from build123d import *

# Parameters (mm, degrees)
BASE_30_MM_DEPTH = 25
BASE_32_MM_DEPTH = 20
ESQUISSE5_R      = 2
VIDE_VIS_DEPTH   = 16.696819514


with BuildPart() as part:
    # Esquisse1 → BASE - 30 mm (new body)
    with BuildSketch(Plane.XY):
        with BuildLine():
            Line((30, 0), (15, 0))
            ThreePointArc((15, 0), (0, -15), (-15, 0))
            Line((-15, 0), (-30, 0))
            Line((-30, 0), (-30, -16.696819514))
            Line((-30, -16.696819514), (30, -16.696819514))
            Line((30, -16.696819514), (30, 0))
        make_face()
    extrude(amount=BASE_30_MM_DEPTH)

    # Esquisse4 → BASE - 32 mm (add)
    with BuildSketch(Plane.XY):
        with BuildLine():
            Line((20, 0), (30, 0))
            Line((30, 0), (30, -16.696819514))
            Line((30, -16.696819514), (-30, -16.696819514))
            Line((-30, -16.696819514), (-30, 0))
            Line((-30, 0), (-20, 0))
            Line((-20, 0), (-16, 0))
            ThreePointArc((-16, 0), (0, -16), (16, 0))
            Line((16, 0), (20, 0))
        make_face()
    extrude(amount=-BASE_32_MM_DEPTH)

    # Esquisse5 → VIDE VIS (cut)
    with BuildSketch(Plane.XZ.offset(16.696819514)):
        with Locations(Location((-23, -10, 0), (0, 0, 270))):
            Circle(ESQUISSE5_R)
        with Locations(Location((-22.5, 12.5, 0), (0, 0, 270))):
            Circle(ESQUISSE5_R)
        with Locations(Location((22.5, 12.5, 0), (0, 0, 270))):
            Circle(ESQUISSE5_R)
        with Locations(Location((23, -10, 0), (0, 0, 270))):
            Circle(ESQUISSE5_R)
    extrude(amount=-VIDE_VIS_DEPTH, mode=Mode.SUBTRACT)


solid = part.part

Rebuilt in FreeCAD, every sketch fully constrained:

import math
import FreeCAD as App
import Part
import Sketcher

doc = App.newDocument("Part")
body = doc.addObject("PartDesign::Body", "Body")

sketch1 = doc.addObject("Sketcher::SketchObject", "Sketch")
body.addObject(sketch1)
sketch1.AttachmentSupport = (doc.XY_Plane, [""])
sketch1.MapMode = "FlatFace"
sketch1.addGeometry(Part.LineSegment(App.Vector(30, 0, 0), App.Vector(15, 0, 0)), False)
sketch1.addGeometry(Part.ArcOfCircle(Part.Circle(App.Vector(0, 0, 0), App.Vector(0, 0, 1), 15), math.radians(180), math.radians(360)), False)
sketch1.addGeometry(Part.LineSegment(App.Vector(-15, 0, 0), App.Vector(-30, 0, 0)), False)
sketch1.addGeometry(Part.LineSegment(App.Vector(-30, 0, 0), App.Vector(-30, -16.69682, 0)), False)
sketch1.addGeometry(Part.LineSegment(App.Vector(-30, -16.69682, 0), App.Vector(30, -16.69682, 0)), False)
sketch1.addGeometry(Part.LineSegment(App.Vector(30, -16.69682, 0), App.Vector(30, 0, 0)), False)
sketch1.addConstraint(Sketcher.Constraint("Coincident", 0, 2, 1, 2))
sketch1.addConstraint(Sketcher.Constraint("Coincident", 1, 1, 2, 1))
sketch1.addConstraint(Sketcher.Constraint("Coincident", 2, 2, 3, 1))
sketch1.addConstraint(Sketcher.Constraint("Coincident", 3, 2, 4, 1))
sketch1.addConstraint(Sketcher.Constraint("Coincident", 4, 2, 5, 1))
sketch1.addConstraint(Sketcher.Constraint("Coincident", 5, 2, 0, 1))
sketch1.addConstraint(Sketcher.Constraint("Horizontal", 0))
sketch1.addConstraint(Sketcher.Constraint("Horizontal", 2))
sketch1.addConstraint(Sketcher.Constraint("Vertical", 3))
sketch1.addConstraint(Sketcher.Constraint("Horizontal", 4))
sketch1.addConstraint(Sketcher.Constraint("Vertical", 5))
sketch1.addConstraint(Sketcher.Constraint("Coincident", 1, 3, -1, 1))
sketch1.addConstraint(Sketcher.Constraint("Symmetric", 2, 2, 5, 2, -1, 1))
sketch1.addConstraint(Sketcher.Constraint("PointOnObject", 0, 2, -1))
sketch1.addConstraint(Sketcher.Constraint("Radius", 1, 15.0))
sketch1.addConstraint(Sketcher.Constraint("DistanceX", 0, 2, 0, 1, 15.0))
sketch1.addConstraint(Sketcher.Constraint("DistanceY", 3, 2, 3, 1, 16.69682))
pad1 = doc.addObject("PartDesign::Pad", "Pad")
body.addObject(pad1)
pad1.Profile = sketch1
pad1.Length = 25

sketch2 = doc.addObject("Sketcher::SketchObject", "Sketch001")
body.addObject(sketch2)
sketch2.AttachmentSupport = (doc.XY_Plane, [""])
sketch2.MapMode = "FlatFace"
sketch2.addGeometry(Part.LineSegment(App.Vector(30, -16.69682, 0), App.Vector(30, 0, 0)), False)
sketch2.addGeometry(Part.LineSegment(App.Vector(30, 0, 0), App.Vector(16, 0, 0)), False)
sketch2.addGeometry(Part.ArcOfCircle(Part.Circle(App.Vector(0, 0, 0), App.Vector(0, 0, 1), 16), math.radians(180), math.radians(360)), False)
sketch2.addGeometry(Part.LineSegment(App.Vector(-16, 0, 0), App.Vector(-30, 0, 0)), False)
sketch2.addGeometry(Part.LineSegment(App.Vector(-30, 0, 0), App.Vector(-30, -16.69682, 0)), False)
sketch2.addGeometry(Part.LineSegment(App.Vector(-30, -16.69682, 0), App.Vector(30, -16.69682, 0)), False)
sketch2.addConstraint(Sketcher.Constraint("Coincident", 0, 2, 1, 1))
sketch2.addConstraint(Sketcher.Constraint("Coincident", 1, 2, 2, 2))
sketch2.addConstraint(Sketcher.Constraint("Coincident", 2, 1, 3, 1))
sketch2.addConstraint(Sketcher.Constraint("Coincident", 3, 2, 4, 1))
sketch2.addConstraint(Sketcher.Constraint("Coincident", 4, 2, 5, 1))
sketch2.addConstraint(Sketcher.Constraint("Coincident", 5, 2, 0, 1))
sketch2.addConstraint(Sketcher.Constraint("Vertical", 0))
sketch2.addConstraint(Sketcher.Constraint("Horizontal", 1))
sketch2.addConstraint(Sketcher.Constraint("Horizontal", 3))
sketch2.addConstraint(Sketcher.Constraint("Vertical", 4))
sketch2.addConstraint(Sketcher.Constraint("Horizontal", 5))
sketch2.addConstraint(Sketcher.Constraint("Coincident", 2, 3, -1, 1))
sketch2.addConstraint(Sketcher.Constraint("Symmetric", 0, 2, 3, 2, -1, 1))
sketch2.addConstraint(Sketcher.Constraint("PointOnObject", 0, 2, -1))
sketch2.addConstraint(Sketcher.Constraint("Radius", 2, 16.0))
sketch2.addConstraint(Sketcher.Constraint("DistanceX", 1, 2, 1, 1, 14.0))
sketch2.addConstraint(Sketcher.Constraint("DistanceY", 0, 1, 0, 2, 16.69682))
pad2 = doc.addObject("PartDesign::Pad", "Pad001")
body.addObject(pad2)
pad2.Profile = sketch2
pad2.Length = 20
pad2.Reversed = True

sketch3 = doc.addObject("Sketcher::SketchObject", "Sketch002")
body.addObject(sketch3)
sketch3.AttachmentSupport = (doc.XZ_Plane, [""])
sketch3.MapMode = "FlatFace"
sketch3.AttachmentOffset = App.Placement(App.Vector(0, 0, 16.69682), App.Rotation())
sketch3.addGeometry(Part.Circle(App.Vector(-23, -10, 0), App.Vector(0, 0, 1), 2), False)
sketch3.addGeometry(Part.Circle(App.Vector(-22.5, 12.5, 0), App.Vector(0, 0, 1), 2), False)
sketch3.addGeometry(Part.Circle(App.Vector(22.5, 12.5, 0), App.Vector(0, 0, 1), 2), False)
sketch3.addGeometry(Part.Circle(App.Vector(23, -10, 0), App.Vector(0, 0, 1), 2), False)
sketch3.addConstraint(Sketcher.Constraint("Equal", 0, 1))
sketch3.addConstraint(Sketcher.Constraint("Equal", 1, 2))
sketch3.addConstraint(Sketcher.Constraint("Equal", 2, 3))
sketch3.addConstraint(Sketcher.Constraint("Symmetric", 1, 3, 2, 3, -2))
sketch3.addConstraint(Sketcher.Constraint("Symmetric", 0, 3, 3, 3, -2))
sketch3.addConstraint(Sketcher.Constraint("Diameter", 0, 4.0))
sketch3.addConstraint(Sketcher.Constraint("DistanceX", 0, 3, -1, 1, 23.0))
sketch3.addConstraint(Sketcher.Constraint("DistanceY", 0, 3, -1, 1, 10.0))
sketch3.addConstraint(Sketcher.Constraint("DistanceX", 1, 3, 2, 3, 45.0))
sketch3.addConstraint(Sketcher.Constraint("DistanceY", -1, 1, 1, 3, 12.5))
pocket1 = doc.addObject("PartDesign::Pocket", "Pocket")
body.addObject(pocket1)
pocket1.Profile = sketch3
pocket1.Length = 16.69682

doc.recompute()
